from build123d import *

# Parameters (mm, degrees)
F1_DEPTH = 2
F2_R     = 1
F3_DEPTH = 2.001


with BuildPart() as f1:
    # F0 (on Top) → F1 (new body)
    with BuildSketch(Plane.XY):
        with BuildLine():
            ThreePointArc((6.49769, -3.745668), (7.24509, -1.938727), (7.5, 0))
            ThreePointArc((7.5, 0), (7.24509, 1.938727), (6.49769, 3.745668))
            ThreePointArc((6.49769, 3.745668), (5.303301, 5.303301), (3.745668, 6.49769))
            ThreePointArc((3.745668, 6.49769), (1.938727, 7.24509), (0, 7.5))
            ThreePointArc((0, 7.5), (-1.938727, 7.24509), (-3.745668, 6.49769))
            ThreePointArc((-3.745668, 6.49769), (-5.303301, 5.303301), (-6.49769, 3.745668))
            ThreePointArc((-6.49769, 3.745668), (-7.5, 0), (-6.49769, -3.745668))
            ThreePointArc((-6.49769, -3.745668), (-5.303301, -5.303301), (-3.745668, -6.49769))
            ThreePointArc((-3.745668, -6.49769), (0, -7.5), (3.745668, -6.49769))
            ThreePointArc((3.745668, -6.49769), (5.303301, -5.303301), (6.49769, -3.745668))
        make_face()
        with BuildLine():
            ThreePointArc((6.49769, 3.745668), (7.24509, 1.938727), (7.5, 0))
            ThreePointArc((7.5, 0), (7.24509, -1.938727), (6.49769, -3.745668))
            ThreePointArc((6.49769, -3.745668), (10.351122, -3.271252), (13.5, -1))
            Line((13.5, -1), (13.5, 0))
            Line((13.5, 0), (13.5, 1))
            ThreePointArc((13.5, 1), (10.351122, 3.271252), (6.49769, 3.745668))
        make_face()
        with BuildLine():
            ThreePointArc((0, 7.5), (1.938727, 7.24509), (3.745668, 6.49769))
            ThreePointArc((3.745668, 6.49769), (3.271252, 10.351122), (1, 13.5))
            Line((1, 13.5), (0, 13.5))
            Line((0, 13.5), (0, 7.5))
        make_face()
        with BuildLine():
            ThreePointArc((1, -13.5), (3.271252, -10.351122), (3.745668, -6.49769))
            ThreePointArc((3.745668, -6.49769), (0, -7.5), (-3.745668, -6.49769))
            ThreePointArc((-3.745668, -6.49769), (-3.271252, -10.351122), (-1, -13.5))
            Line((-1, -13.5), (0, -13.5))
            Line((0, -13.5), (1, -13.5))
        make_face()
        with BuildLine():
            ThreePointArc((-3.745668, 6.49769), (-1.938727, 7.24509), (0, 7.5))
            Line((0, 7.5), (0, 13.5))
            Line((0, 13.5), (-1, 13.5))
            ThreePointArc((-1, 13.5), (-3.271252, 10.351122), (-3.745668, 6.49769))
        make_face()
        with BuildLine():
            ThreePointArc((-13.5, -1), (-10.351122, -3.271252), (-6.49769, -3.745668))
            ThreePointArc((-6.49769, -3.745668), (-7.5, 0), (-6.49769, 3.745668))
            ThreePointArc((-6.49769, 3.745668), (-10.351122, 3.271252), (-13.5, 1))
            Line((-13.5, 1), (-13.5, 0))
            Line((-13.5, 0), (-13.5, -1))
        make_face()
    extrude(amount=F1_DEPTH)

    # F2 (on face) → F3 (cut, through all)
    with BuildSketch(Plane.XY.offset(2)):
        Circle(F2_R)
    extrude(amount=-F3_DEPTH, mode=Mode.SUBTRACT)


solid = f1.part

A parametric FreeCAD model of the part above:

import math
import FreeCAD as App
import Part
import Sketcher
from FreeCAD import Vector

doc = App.newDocument("Part")
params = doc.addObject("Spreadsheet::Sheet", "Params")
for row, (alias, value) in enumerate([
    ("sketch1_width", "2 mm"),
    ("pad1_length", "2 mm"),
    ("sketch2_diameter", "2 mm"),
], start=1):
    params.set(f"A{row}", alias)
    params.set(f"B{row}", "=" + value)
    params.setAlias(f"B{row}", alias)

body = doc.addObject("PartDesign::Body", "Body")

# Sketch on XY plane
sketch1 = body.newObject("Sketcher::SketchObject", "Sketch")
sketch1.AttachmentSupport = (doc.getObject("XY_Plane"), [""])
sketch1.MapMode = "FlatFace"
sketch1.addGeometry([
    Part.ArcOfCircle(Part.Circle(Vector(0, 0, 0), Vector(0, 0, 1), 7.5), math.radians(30), math.radians(60)),  # 0
    Part.ArcOfCircle(Part.Circle(Vector(-4, 7.5, 0), Vector(0, 0, 1), 7.8), math.radians(-7), math.radians(50)),  # 1
    Part.LineSegment(Vector(1, 13.5, 0), Vector(-1, 13.5, 0)),  # 2
    Part.ArcOfCircle(Part.Circle(Vector(4, 7.5, 0), Vector(0, 0, 1), 7.8), math.radians(130), math.radians(187)),  # 3
    Part.ArcOfCircle(Part.Circle(Vector(0, 0, 0), Vector(0, 0, 1), 7.5), math.radians(120), math.radians(150)),  # 4
    Part.ArcOfCircle(Part.Circle(Vector(-7.5, -4, 0), Vector(0, 0, 1), 7.8), math.radians(83), math.radians(140)),  # 5
    Part.LineSegment(Vector(-13.5, 1, 0), Vector(-13.5, -1, 0)),  # 6
    Part.ArcOfCircle(Part.Circle(Vector(-7.5, 4, 0), Vector(0, 0, 1), 7.8), math.radians(-140), math.radians(-83)),  # 7
    Part.ArcOfCircle(Part.Circle(Vector(0, 0, 0), Vector(0, 0, 1), 7.5), math.radians(-150), math.radians(-120)),  # 8
    Part.ArcOfCircle(Part.Circle(Vector(4, -7.5, 0), Vector(0, 0, 1), 7.8), math.radians(173), math.radians(230)),  # 9
    Part.LineSegment(Vector(-1, -13.5, 0), Vector(1, -13.5, 0)),  # 10
    Part.ArcOfCircle(Part.Circle(Vector(-4, -7.5, 0), Vector(0, 0, 1), 7.8), math.radians(-50), math.radians(7)),  # 11
    Part.ArcOfCircle(Part.Circle(Vector(0, 0, 0), Vector(0, 0, 1), 7.5), math.radians(-60), math.radians(-30)),  # 12
    Part.ArcOfCircle(Part.Circle(Vector(7.5, 4, 0), Vector(0, 0, 1), 7.8), math.radians(-97), math.radians(-40)),  # 13
    Part.LineSegment(Vector(13.5, -1, 0), Vector(13.5, 1, 0)),  # 14
    Part.ArcOfCircle(Part.Circle(Vector(7.5, -4, 0), Vector(0, 0, 1), 7.8), math.radians(40), math.radians(97)),  # 15
], False)
sketch1.addConstraint([
    Sketcher.Constraint("Coincident", 0, 2, 1, 1),
    Sketcher.Constraint("Coincident", 1, 2, 2, 1),
    Sketcher.Constraint("Coincident", 2, 2, 3, 1),
    Sketcher.Constraint("Coincident", 3, 2, 4, 1),
    Sketcher.Constraint("Coincident", 4, 2, 5, 1),
    Sketcher.Constraint("Coincident", 5, 2, 6, 1),
    Sketcher.Constraint("Coincident", 6, 2, 7, 1),
    Sketcher.Constraint("Coincident", 7, 2, 8, 1),
    Sketcher.Constraint("Coincident", 8, 2, 9, 1),
    Sketcher.Constraint("Coincident", 9, 2, 10, 1),
    Sketcher.Constraint("Coincident", 10, 2, 11, 1),
    Sketcher.Constraint("Coincident", 11, 2, 12, 1),
    Sketcher.Constraint("Coincident", 12, 2, 13, 1),
    Sketcher.Constraint("Coincident", 13, 2, 14, 1),
    Sketcher.Constraint("Coincident", 14, 2, 15, 1),
    Sketcher.Constraint("Coincident", 15, 2, 0, 1),
    Sketcher.Constraint("Horizontal", 2),
    Sketcher.Constraint("Vertical", 6),
    Sketcher.Constraint("Horizontal", 10),
    Sketcher.Constraint("Vertical", 14),
    Sketcher.Constraint("Coincident", 0, 3, -1, 1),
    Sketcher.Constraint("Coincident", 4, 3, -1, 1),
    Sketcher.Constraint("Coincident", 8, 3, -1, 1),
    Sketcher.Constraint("Coincident", 12, 3, -1, 1),
    Sketcher.Constraint("Equal", 1, 3),
    Sketcher.Constraint("Equal", 0, 4),
    Sketcher.Constraint("Equal", 3, 5),
    Sketcher.Constraint("Equal", 5, 7),
    Sketcher.Constraint("Equal", 4, 8),
    Sketcher.Constraint("Equal", 7, 9),
    Sketcher.Constraint("Equal", 9, 11),
    Sketcher.Constraint("Equal", 8, 12),
    Sketcher.Constraint("Equal", 11, 13),
    Sketcher.Constraint("Equal", 13, 15),
    Sketcher.Constraint("Symmetric", 1, 3, 9, 3, -1, 1),
    Sketcher.Constraint("Symmetric", 3, 3, 11, 3, -1, 1),
    Sketcher.Constraint("Symmetric", 5, 3, 13, 3, -1, 1),
    Sketcher.Constraint("Symmetric", 7, 3, 15, 3, -1, 1),
    Sketcher.Constraint("Symmetric", 1, 3, 3, 3, -2),
    Sketcher.Constraint("Symmetric", 7, 3, 13, 3, -2),
    Sketcher.Constraint("Horizontal", 6, 2, 13, 2),
    Sketcher.Constraint("Vertical", 2, 2, 9, 2),
    Sketcher.Constraint("Equal", 10, 6),
    Sketcher.Constraint("DistanceX", 2, 2, 2, 1, 2.0),
    Sketcher.Constraint("DistanceX", 1, 3, -1, 1, 3.999998),
    Sketcher.Constraint("DistanceY", 5, 3, -1, 1, 3.999998),
    Sketcher.Constraint("DistanceY", 9, 3, 3, 3, 15.000001),
    Sketcher.Constraint("DistanceY", 3, 3, 1, 2, 5.999999),
    Sketcher.Constraint("DistanceX", 5, 3, -1, 1, 7.500001),
    Sketcher.Constraint("Radius", 0, 7.500002),
])
sketch1.setExpression("Constraints[43]", "Params.sketch1_width")
pad1 = body.newObject("PartDesign::Pad", "Pad")
pad1.Profile = sketch1
pad1.setExpression("Length", "Params.pad1_length")

# Sketch on XY plane
sketch2 = body.newObject("Sketcher::SketchObject", "Sketch001")
sketch2.AttachmentSupport = (doc.getObject("XY_Plane"), [""])
sketch2.MapMode = "FlatFace"
sketch2.AttachmentOffset = App.Placement(Vector(0, 0, 2), App.Rotation())
sketch2.addGeometry(Part.Circle(Vector(0, 0, 0), Vector(0, 0, 1), 1), False)
sketch2.addConstraint([
    Sketcher.Constraint("Coincident", 0, 3, -1, 1),
    Sketcher.Constraint("Diameter", 0, 2.0),
])
sketch2.setExpression("Constraints[1]", "Params.sketch2_diameter")
pocket1 = body.newObject("PartDesign::Pocket", "Pocket")
pocket1.Profile = sketch2
pocket1.Type = "ThroughAll"

doc.recompute()
